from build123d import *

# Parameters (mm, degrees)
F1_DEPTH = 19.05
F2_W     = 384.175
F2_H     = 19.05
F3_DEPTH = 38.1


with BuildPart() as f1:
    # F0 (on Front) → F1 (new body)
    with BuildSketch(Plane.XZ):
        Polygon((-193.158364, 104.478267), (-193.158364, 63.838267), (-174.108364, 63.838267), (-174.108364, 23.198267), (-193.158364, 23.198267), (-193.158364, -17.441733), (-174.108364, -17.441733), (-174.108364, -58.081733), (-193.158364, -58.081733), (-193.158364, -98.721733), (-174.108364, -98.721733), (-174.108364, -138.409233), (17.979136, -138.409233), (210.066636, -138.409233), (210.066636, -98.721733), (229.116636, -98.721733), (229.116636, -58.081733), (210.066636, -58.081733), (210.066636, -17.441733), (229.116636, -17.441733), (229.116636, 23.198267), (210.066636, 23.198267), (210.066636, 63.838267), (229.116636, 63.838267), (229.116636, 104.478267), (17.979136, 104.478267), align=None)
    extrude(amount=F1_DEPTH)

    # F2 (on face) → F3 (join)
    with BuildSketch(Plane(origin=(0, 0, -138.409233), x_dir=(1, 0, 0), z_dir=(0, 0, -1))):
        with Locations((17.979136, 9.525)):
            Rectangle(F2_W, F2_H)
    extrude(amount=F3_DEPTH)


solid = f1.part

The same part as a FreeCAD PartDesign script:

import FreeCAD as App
import Part
import Sketcher
Q = App.Units.Quantity

doc = App.newDocument("Part")
params = doc.addObject("Spreadsheet::Sheet", "Params")
for row, (alias, value) in enumerate([
    ("sketch1_height", "1.6 in"),
    ("sketch1_width", "0.75 in"),
    ("sketch1_width2", "15.125 in"),
    ("sketch1_height2", "1.5625 in"),
    ("pad1_length", "0.75 in"),
    ("sketch2_height", "0.75 in"),
    ("sketch2_width", "15.125 in"),
    ("pad2_length", "1.5 in"),
], start=1):
    params.set(f"A{row}", alias)
    params.set(f"B{row}", "=" + value)
    params.setAlias(f"B{row}", alias)

body = doc.addObject("PartDesign::Body", "Body")

# Sketch on XZ plane
sketch1 = body.newObject("Sketcher::SketchObject", "Sketch")
sketch1.AttachmentSupport = (doc.getObject("XZ_Plane"), [""])
sketch1.MapMode = "FlatFace"
sketch1.addGeometry(Part.LineSegment(App.Vector(-193, 104, 0), App.Vector(-193, 64, 0)), False)
sketch1.addGeometry(Part.LineSegment(App.Vector(-193, 64, 0), App.Vector(-174, 64, 0)), False)
sketch1.addGeometry(Part.LineSegment(App.Vector(-174, 64, 0), App.Vector(-174, 23, 0)), False)
sketch1.addGeometry(Part.LineSegment(App.Vector(-174, 23, 0), App.Vector(-193, 23, 0)), False)
sketch1.addGeometry(Part.LineSegment(App.Vector(-193, 23, 0), App.Vector(-193, -17, 0)), False)
sketch1.addGeometry(Part.LineSegment(App.Vector(-193, -17, 0), App.Vector(-174, -17, 0)), False)
sketch1.addGeometry(Part.LineSegment(App.Vector(-174, -17, 0), App.Vector(-174, -58, 0)), False)
sketch1.addGeometry(Part.LineSegment(App.Vector(-174, -58, 0), App.Vector(-193, -58, 0)), False)
sketch1.addGeometry(Part.LineSegment(App.Vector(-193, -58, 0), App.Vector(-193, -99, 0)), False)
sketch1.addGeometry(Part.LineSegment(App.Vector(-193, -99, 0), App.Vector(-174, -99, 0)), False)
sketch1.addGeometry(Part.LineSegment(App.Vector(-174, -99, 0), App.Vector(-174, -138, 0)), False)
sketch1.addGeometry(Part.LineSegment(App.Vector(-174, -138, 0), App.Vector(210, -138, 0)), False)
sketch1.addGeometry(Part.LineSegment(App.Vector(210, -138, 0), App.Vector(210, -99, 0)), False)
sketch1.addGeometry(Part.LineSegment(App.Vector(210, -99, 0), App.Vector(229, -99, 0)), False)
sketch1.addGeometry(Part.LineSegment(App.Vector(229, -99, 0), App.Vector(229, -58, 0)), False)
sketch1.addGeometry(Part.LineSegment(App.Vector(229, -58, 0), App.Vector(210, -58, 0)), False)
sketch1.addGeometry(Part.LineSegment(App.Vector(210, -58, 0), App.Vector(210, -17, 0)), False)
sketch1.addGeometry(Part.LineSegment(App.Vector(210, -17, 0), App.Vector(229, -17, 0)), False)
sketch1.addGeometry(Part.LineSegment(App.Vector(229, -17, 0), App.Vector(229, 23, 0)), False)
sketch1.addGeometry(Part.LineSegment(App.Vector(229, 23, 0), App.Vector(210, 23, 0)), False)
sketch1.addGeometry(Part.LineSegment(App.Vector(210, 23, 0), App.Vector(210, 64, 0)), False)
sketch1.addGeometry(Part.LineSegment(App.Vector(210, 64, 0), App.Vector(229, 64, 0)), False)
sketch1.addGeometry(Part.LineSegment(App.Vector(229, 64, 0), App.Vector(229, 104, 0)), False)
sketch1.addGeometry(Part.LineSegment(App.Vector(229, 104, 0), App.Vector(-193, 104, 0)), False)
sketch1.addConstraint(Sketcher.Constraint("Coincident", 0, 2, 1, 1))
sketch1.addConstraint(Sketcher.Constraint("Coincident", 1, 2, 2, 1))
sketch1.addConstraint(Sketcher.Constraint("Coincident", 2, 2, 3, 1))
sketch1.addConstraint(Sketcher.Constraint("Coincident", 3, 2, 4, 1))
sketch1.addConstraint(Sketcher.Constraint("Coincident", 4, 2, 5, 1))
sketch1.addConstraint(Sketcher.Constraint("Coincident", 5, 2, 6, 1))
sketch1.addConstraint(Sketcher.Constraint("Coincident", 6, 2, 7, 1))
sketch1.addConstraint(Sketcher.Constraint("Coincident", 7, 2, 8, 1))
sketch1.addConstraint(Sketcher.Constraint("Coincident", 8, 2, 9, 1))
sketch1.addConstraint(Sketcher.Constraint("Coincident", 9, 2, 10, 1))
sketch1.addConstraint(Sketcher.Constraint("Coincident", 10, 2, 11, 1))
sketch1.addConstraint(Sketcher.Constraint("Coincident", 11, 2, 12, 1))
sketch1.addConstraint(Sketcher.Constraint("Coincident", 12, 2, 13, 1))
sketch1.addConstraint(Sketcher.Constraint("Coincident", 13, 2, 14, 1))
sketch1.addConstraint(Sketcher.Constraint("Coincident", 14, 2, 15, 1))
sketch1.addConstraint(Sketcher.Constraint("Coincident", 15, 2, 16, 1))
sketch1.addConstraint(Sketcher.Constraint("Coincident", 16, 2, 17, 1))
sketch1.addConstraint(Sketcher.Constraint("Coincident", 17, 2, 18, 1))
sketch1.addConstraint(Sketcher.Constraint("Coincident", 18, 2, 19, 1))
sketch1.addConstraint(Sketcher.Constraint("Coincident", 19, 2, 20, 1))
sketch1.addConstraint(Sketcher.Constraint("Coincident", 20, 2, 21, 1))
sketch1.addConstraint(Sketcher.Constraint("Coincident", 21, 2, 22, 1))
sketch1.addConstraint(Sketcher.Constraint("Coincident", 22, 2, 23, 1))
sketch1.addConstraint(Sketcher.Constraint("Coincident", 23, 2, 0, 1))
sketch1.addConstraint(Sketcher.Constraint("Vertical", 0))
sketch1.addConstraint(Sketcher.Constraint("Horizontal", 1))
sketch1.addConstraint(Sketcher.Constraint("Vertical", 2))
sketch1.addConstraint(Sketcher.Constraint("Horizontal", 3))
sketch1.addConstraint(Sketcher.Constraint("Vertical", 4))
sketch1.addConstraint(Sketcher.Constraint("Horizontal", 5))
sketch1.addConstraint(Sketcher.Constraint("Vertical", 6))
sketch1.addConstraint(Sketcher.Constraint("Horizontal", 7))
sketch1.addConstraint(Sketcher.Constraint("Vertical", 8))
sketch1.addConstraint(Sketcher.Constraint("Horizontal", 9))
sketch1.addConstraint(Sketcher.Constraint("Vertical", 10))
sketch1.addConstraint(Sketcher.Constraint("Horizontal", 11))
sketch1.addConstraint(Sketcher.Constraint("Vertical", 12))
sketch1.addConstraint(Sketcher.Constraint("Horizontal", 13))
sketch1.addConstraint(Sketcher.Constraint("Vertical", 14))
sketch1.addConstraint(Sketcher.Constraint("Horizontal", 15))
sketch1.addConstraint(Sketcher.Constraint("Vertical", 16))
sketch1.addConstraint(Sketcher.Constraint("Horizontal", 17))
sketch1.addConstraint(Sketcher.Constraint("Vertical", 18))
sketch1.addConstraint(Sketcher.Constraint("Horizontal", 19))
sketch1.addConstraint(Sketcher.Constraint("Vertical", 20))
sketch1.addConstraint(Sketcher.Constraint("Horizontal", 21))
sketch1.addConstraint(Sketcher.Constraint("Vertical", 22))
sketch1.addConstraint(Sketcher.Constraint("Horizontal", 23))
sketch1.addConstraint(Sketcher.Constraint("Horizontal", 9, 2, 12, 2))
sketch1.addConstraint(Sketcher.Constraint("Horizontal", 7, 2, 14, 2))
sketch1.addConstraint(Sketcher.Constraint("Horizontal", 5, 2, 16, 2))
sketch1.addConstraint(Sketcher.Constraint("Horizontal", 3, 2, 18, 2))
sketch1.addConstraint(Sketcher.Constraint("Horizontal", 1, 2, 20, 2))
sketch1.addConstraint(Sketcher.Constraint("Vertical", 0, 2, 3, 2))
sketch1.addConstraint(Sketcher.Constraint("Vertical", 2, 2, 5, 2))
sketch1.addConstraint(Sketcher.Constraint("Vertical", 4, 2, 7, 2))
sketch1.addConstraint(Sketcher.Constraint("Vertical", 6, 2, 9, 2))
sketch1.addConstraint(Sketcher.Constraint("Vertical", 12, 2, 15, 2))
sketch1.addConstraint(Sketcher.Constraint("Vertical", 14, 2, 17, 2))
sketch1.addConstraint(Sketcher.Constraint("Vertical", 16, 2, 19, 2))
sketch1.addConstraint(Sketcher.Constraint("Vertical", 18, 2, 21, 2))
sketch1.addConstraint(Sketcher.Constraint("Equal", 9, 13))
sketch1.addConstraint(Sketcher.Constraint("Equal", 0, 2))
sketch1.addConstraint(Sketcher.Constraint("Equal", 2, 4))
sketch1.addConstraint(Sketcher.Constraint("Equal", 4, 6))
sketch1.addConstraint(Sketcher.Constraint("Equal", 6, 8))
sketch1.addConstraint(Sketcher.Constraint("DistanceY", 0, 2, 0, 1, Q("1.6 in")))
sketch1.addConstraint(Sketcher.Constraint("DistanceX", 1, 1, 1, 2, Q("0.75 in")))
sketch1.addConstraint(Sketcher.Constraint("DistanceX", 11, 1, 11, 2, Q("15.125 in")))
sketch1.addConstraint(Sketcher.Constraint("DistanceY", 10, 2, 10, 1, Q("1.5625 in")))
sketch1.addConstraint(Sketcher.Constraint("DistanceX", 0, 2, -1, 1, Q("193.158364 mm")))
sketch1.addConstraint(Sketcher.Constraint("DistanceY", -1, 1, 0, 2, Q("63.838267 mm")))
sketch1.setExpression("Constraints[66]", "Params.sketch1_height")
sketch1.setExpression("Constraints[67]", "Params.sketch1_width")
sketch1.setExpression("Constraints[68]", "Params.sketch1_width2")
sketch1.setExpression("Constraints[69]", "Params.sketch1_height2")
pad1 = body.newObject("PartDesign::Pad", "Pad")
pad1.Profile = sketch1
pad1.setExpression("Length", "Params.pad1_length")

# Sketch on XY plane
sketch2 = body.newObject("Sketcher::SketchObject", "Sketch001")
sketch2.AttachmentSupport = (doc.getObject("XY_Plane"), [""])
sketch2.MapMode = "FlatFace"
sketch2.AttachmentOffset = App.Placement(App.Vector(0, 0, -138.409233), App.Rotation())
sketch2.addGeometry(Part.LineSegment(App.Vector(-174, -19, 0), App.Vector(-174, 0, 0)), False)
sketch2.addGeometry(Part.LineSegment(App.Vector(-174, 0, 0), App.Vector(210, 0, 0)), False)
sketch2.addGeometry(Part.LineSegment(App.Vector(210, 0, 0), App.Vector(210, -19, 0)), False)
sketch2.addGeometry(Part.LineSegment(App.Vector(210, -19, 0), App.Vector(-174, -19, 0)), False)
sketch2.addConstraint(Sketcher.Constraint("Coincident", 0, 2, 1, 1))
sketch2.addConstraint(Sketcher.Constraint("Coincident", 1, 2, 2, 1))
sketch2.addConstraint(Sketcher.Constraint("Coincident", 2, 2, 3, 1))
sketch2.addConstraint(Sketcher.Constraint("Coincident", 3, 2, 0, 1))
sketch2.addConstraint(Sketcher.Constraint("Vertical", 0))
sketch2.addConstraint(Sketcher.Constraint("Horizontal", 1))
sketch2.addConstraint(Sketcher.Constraint("Vertical", 2))
sketch2.addConstraint(Sketcher.Constraint("Horizontal", 3))
sketch2.addConstraint(Sketcher.Constraint("PointOnObject", 0, 2, -1))
sketch2.addConstraint(Sketcher.Constraint("DistanceY", 0, 1, 0, 2, Q("0.75 in")))
sketch2.addConstraint(Sketcher.Constraint("DistanceX", 1, 1, 1, 2, Q("15.125 in")))
sketch2.addConstraint(Sketcher.Constraint("DistanceX", 0, 2, -1, 1, Q("174.108364 mm")))
sketch2.setExpression("Constraints[9]", "Params.sketch2_height")
sketch2.setExpression("Constraints[10]", "Params.sketch2_width")
pad2 = body.newObject("PartDesign::Pad", "Pad001")
pad2.Profile = sketch2
pad2.setExpression("Length", "Params.pad2_length")
pad2.Reversed = True

doc.recompute()
